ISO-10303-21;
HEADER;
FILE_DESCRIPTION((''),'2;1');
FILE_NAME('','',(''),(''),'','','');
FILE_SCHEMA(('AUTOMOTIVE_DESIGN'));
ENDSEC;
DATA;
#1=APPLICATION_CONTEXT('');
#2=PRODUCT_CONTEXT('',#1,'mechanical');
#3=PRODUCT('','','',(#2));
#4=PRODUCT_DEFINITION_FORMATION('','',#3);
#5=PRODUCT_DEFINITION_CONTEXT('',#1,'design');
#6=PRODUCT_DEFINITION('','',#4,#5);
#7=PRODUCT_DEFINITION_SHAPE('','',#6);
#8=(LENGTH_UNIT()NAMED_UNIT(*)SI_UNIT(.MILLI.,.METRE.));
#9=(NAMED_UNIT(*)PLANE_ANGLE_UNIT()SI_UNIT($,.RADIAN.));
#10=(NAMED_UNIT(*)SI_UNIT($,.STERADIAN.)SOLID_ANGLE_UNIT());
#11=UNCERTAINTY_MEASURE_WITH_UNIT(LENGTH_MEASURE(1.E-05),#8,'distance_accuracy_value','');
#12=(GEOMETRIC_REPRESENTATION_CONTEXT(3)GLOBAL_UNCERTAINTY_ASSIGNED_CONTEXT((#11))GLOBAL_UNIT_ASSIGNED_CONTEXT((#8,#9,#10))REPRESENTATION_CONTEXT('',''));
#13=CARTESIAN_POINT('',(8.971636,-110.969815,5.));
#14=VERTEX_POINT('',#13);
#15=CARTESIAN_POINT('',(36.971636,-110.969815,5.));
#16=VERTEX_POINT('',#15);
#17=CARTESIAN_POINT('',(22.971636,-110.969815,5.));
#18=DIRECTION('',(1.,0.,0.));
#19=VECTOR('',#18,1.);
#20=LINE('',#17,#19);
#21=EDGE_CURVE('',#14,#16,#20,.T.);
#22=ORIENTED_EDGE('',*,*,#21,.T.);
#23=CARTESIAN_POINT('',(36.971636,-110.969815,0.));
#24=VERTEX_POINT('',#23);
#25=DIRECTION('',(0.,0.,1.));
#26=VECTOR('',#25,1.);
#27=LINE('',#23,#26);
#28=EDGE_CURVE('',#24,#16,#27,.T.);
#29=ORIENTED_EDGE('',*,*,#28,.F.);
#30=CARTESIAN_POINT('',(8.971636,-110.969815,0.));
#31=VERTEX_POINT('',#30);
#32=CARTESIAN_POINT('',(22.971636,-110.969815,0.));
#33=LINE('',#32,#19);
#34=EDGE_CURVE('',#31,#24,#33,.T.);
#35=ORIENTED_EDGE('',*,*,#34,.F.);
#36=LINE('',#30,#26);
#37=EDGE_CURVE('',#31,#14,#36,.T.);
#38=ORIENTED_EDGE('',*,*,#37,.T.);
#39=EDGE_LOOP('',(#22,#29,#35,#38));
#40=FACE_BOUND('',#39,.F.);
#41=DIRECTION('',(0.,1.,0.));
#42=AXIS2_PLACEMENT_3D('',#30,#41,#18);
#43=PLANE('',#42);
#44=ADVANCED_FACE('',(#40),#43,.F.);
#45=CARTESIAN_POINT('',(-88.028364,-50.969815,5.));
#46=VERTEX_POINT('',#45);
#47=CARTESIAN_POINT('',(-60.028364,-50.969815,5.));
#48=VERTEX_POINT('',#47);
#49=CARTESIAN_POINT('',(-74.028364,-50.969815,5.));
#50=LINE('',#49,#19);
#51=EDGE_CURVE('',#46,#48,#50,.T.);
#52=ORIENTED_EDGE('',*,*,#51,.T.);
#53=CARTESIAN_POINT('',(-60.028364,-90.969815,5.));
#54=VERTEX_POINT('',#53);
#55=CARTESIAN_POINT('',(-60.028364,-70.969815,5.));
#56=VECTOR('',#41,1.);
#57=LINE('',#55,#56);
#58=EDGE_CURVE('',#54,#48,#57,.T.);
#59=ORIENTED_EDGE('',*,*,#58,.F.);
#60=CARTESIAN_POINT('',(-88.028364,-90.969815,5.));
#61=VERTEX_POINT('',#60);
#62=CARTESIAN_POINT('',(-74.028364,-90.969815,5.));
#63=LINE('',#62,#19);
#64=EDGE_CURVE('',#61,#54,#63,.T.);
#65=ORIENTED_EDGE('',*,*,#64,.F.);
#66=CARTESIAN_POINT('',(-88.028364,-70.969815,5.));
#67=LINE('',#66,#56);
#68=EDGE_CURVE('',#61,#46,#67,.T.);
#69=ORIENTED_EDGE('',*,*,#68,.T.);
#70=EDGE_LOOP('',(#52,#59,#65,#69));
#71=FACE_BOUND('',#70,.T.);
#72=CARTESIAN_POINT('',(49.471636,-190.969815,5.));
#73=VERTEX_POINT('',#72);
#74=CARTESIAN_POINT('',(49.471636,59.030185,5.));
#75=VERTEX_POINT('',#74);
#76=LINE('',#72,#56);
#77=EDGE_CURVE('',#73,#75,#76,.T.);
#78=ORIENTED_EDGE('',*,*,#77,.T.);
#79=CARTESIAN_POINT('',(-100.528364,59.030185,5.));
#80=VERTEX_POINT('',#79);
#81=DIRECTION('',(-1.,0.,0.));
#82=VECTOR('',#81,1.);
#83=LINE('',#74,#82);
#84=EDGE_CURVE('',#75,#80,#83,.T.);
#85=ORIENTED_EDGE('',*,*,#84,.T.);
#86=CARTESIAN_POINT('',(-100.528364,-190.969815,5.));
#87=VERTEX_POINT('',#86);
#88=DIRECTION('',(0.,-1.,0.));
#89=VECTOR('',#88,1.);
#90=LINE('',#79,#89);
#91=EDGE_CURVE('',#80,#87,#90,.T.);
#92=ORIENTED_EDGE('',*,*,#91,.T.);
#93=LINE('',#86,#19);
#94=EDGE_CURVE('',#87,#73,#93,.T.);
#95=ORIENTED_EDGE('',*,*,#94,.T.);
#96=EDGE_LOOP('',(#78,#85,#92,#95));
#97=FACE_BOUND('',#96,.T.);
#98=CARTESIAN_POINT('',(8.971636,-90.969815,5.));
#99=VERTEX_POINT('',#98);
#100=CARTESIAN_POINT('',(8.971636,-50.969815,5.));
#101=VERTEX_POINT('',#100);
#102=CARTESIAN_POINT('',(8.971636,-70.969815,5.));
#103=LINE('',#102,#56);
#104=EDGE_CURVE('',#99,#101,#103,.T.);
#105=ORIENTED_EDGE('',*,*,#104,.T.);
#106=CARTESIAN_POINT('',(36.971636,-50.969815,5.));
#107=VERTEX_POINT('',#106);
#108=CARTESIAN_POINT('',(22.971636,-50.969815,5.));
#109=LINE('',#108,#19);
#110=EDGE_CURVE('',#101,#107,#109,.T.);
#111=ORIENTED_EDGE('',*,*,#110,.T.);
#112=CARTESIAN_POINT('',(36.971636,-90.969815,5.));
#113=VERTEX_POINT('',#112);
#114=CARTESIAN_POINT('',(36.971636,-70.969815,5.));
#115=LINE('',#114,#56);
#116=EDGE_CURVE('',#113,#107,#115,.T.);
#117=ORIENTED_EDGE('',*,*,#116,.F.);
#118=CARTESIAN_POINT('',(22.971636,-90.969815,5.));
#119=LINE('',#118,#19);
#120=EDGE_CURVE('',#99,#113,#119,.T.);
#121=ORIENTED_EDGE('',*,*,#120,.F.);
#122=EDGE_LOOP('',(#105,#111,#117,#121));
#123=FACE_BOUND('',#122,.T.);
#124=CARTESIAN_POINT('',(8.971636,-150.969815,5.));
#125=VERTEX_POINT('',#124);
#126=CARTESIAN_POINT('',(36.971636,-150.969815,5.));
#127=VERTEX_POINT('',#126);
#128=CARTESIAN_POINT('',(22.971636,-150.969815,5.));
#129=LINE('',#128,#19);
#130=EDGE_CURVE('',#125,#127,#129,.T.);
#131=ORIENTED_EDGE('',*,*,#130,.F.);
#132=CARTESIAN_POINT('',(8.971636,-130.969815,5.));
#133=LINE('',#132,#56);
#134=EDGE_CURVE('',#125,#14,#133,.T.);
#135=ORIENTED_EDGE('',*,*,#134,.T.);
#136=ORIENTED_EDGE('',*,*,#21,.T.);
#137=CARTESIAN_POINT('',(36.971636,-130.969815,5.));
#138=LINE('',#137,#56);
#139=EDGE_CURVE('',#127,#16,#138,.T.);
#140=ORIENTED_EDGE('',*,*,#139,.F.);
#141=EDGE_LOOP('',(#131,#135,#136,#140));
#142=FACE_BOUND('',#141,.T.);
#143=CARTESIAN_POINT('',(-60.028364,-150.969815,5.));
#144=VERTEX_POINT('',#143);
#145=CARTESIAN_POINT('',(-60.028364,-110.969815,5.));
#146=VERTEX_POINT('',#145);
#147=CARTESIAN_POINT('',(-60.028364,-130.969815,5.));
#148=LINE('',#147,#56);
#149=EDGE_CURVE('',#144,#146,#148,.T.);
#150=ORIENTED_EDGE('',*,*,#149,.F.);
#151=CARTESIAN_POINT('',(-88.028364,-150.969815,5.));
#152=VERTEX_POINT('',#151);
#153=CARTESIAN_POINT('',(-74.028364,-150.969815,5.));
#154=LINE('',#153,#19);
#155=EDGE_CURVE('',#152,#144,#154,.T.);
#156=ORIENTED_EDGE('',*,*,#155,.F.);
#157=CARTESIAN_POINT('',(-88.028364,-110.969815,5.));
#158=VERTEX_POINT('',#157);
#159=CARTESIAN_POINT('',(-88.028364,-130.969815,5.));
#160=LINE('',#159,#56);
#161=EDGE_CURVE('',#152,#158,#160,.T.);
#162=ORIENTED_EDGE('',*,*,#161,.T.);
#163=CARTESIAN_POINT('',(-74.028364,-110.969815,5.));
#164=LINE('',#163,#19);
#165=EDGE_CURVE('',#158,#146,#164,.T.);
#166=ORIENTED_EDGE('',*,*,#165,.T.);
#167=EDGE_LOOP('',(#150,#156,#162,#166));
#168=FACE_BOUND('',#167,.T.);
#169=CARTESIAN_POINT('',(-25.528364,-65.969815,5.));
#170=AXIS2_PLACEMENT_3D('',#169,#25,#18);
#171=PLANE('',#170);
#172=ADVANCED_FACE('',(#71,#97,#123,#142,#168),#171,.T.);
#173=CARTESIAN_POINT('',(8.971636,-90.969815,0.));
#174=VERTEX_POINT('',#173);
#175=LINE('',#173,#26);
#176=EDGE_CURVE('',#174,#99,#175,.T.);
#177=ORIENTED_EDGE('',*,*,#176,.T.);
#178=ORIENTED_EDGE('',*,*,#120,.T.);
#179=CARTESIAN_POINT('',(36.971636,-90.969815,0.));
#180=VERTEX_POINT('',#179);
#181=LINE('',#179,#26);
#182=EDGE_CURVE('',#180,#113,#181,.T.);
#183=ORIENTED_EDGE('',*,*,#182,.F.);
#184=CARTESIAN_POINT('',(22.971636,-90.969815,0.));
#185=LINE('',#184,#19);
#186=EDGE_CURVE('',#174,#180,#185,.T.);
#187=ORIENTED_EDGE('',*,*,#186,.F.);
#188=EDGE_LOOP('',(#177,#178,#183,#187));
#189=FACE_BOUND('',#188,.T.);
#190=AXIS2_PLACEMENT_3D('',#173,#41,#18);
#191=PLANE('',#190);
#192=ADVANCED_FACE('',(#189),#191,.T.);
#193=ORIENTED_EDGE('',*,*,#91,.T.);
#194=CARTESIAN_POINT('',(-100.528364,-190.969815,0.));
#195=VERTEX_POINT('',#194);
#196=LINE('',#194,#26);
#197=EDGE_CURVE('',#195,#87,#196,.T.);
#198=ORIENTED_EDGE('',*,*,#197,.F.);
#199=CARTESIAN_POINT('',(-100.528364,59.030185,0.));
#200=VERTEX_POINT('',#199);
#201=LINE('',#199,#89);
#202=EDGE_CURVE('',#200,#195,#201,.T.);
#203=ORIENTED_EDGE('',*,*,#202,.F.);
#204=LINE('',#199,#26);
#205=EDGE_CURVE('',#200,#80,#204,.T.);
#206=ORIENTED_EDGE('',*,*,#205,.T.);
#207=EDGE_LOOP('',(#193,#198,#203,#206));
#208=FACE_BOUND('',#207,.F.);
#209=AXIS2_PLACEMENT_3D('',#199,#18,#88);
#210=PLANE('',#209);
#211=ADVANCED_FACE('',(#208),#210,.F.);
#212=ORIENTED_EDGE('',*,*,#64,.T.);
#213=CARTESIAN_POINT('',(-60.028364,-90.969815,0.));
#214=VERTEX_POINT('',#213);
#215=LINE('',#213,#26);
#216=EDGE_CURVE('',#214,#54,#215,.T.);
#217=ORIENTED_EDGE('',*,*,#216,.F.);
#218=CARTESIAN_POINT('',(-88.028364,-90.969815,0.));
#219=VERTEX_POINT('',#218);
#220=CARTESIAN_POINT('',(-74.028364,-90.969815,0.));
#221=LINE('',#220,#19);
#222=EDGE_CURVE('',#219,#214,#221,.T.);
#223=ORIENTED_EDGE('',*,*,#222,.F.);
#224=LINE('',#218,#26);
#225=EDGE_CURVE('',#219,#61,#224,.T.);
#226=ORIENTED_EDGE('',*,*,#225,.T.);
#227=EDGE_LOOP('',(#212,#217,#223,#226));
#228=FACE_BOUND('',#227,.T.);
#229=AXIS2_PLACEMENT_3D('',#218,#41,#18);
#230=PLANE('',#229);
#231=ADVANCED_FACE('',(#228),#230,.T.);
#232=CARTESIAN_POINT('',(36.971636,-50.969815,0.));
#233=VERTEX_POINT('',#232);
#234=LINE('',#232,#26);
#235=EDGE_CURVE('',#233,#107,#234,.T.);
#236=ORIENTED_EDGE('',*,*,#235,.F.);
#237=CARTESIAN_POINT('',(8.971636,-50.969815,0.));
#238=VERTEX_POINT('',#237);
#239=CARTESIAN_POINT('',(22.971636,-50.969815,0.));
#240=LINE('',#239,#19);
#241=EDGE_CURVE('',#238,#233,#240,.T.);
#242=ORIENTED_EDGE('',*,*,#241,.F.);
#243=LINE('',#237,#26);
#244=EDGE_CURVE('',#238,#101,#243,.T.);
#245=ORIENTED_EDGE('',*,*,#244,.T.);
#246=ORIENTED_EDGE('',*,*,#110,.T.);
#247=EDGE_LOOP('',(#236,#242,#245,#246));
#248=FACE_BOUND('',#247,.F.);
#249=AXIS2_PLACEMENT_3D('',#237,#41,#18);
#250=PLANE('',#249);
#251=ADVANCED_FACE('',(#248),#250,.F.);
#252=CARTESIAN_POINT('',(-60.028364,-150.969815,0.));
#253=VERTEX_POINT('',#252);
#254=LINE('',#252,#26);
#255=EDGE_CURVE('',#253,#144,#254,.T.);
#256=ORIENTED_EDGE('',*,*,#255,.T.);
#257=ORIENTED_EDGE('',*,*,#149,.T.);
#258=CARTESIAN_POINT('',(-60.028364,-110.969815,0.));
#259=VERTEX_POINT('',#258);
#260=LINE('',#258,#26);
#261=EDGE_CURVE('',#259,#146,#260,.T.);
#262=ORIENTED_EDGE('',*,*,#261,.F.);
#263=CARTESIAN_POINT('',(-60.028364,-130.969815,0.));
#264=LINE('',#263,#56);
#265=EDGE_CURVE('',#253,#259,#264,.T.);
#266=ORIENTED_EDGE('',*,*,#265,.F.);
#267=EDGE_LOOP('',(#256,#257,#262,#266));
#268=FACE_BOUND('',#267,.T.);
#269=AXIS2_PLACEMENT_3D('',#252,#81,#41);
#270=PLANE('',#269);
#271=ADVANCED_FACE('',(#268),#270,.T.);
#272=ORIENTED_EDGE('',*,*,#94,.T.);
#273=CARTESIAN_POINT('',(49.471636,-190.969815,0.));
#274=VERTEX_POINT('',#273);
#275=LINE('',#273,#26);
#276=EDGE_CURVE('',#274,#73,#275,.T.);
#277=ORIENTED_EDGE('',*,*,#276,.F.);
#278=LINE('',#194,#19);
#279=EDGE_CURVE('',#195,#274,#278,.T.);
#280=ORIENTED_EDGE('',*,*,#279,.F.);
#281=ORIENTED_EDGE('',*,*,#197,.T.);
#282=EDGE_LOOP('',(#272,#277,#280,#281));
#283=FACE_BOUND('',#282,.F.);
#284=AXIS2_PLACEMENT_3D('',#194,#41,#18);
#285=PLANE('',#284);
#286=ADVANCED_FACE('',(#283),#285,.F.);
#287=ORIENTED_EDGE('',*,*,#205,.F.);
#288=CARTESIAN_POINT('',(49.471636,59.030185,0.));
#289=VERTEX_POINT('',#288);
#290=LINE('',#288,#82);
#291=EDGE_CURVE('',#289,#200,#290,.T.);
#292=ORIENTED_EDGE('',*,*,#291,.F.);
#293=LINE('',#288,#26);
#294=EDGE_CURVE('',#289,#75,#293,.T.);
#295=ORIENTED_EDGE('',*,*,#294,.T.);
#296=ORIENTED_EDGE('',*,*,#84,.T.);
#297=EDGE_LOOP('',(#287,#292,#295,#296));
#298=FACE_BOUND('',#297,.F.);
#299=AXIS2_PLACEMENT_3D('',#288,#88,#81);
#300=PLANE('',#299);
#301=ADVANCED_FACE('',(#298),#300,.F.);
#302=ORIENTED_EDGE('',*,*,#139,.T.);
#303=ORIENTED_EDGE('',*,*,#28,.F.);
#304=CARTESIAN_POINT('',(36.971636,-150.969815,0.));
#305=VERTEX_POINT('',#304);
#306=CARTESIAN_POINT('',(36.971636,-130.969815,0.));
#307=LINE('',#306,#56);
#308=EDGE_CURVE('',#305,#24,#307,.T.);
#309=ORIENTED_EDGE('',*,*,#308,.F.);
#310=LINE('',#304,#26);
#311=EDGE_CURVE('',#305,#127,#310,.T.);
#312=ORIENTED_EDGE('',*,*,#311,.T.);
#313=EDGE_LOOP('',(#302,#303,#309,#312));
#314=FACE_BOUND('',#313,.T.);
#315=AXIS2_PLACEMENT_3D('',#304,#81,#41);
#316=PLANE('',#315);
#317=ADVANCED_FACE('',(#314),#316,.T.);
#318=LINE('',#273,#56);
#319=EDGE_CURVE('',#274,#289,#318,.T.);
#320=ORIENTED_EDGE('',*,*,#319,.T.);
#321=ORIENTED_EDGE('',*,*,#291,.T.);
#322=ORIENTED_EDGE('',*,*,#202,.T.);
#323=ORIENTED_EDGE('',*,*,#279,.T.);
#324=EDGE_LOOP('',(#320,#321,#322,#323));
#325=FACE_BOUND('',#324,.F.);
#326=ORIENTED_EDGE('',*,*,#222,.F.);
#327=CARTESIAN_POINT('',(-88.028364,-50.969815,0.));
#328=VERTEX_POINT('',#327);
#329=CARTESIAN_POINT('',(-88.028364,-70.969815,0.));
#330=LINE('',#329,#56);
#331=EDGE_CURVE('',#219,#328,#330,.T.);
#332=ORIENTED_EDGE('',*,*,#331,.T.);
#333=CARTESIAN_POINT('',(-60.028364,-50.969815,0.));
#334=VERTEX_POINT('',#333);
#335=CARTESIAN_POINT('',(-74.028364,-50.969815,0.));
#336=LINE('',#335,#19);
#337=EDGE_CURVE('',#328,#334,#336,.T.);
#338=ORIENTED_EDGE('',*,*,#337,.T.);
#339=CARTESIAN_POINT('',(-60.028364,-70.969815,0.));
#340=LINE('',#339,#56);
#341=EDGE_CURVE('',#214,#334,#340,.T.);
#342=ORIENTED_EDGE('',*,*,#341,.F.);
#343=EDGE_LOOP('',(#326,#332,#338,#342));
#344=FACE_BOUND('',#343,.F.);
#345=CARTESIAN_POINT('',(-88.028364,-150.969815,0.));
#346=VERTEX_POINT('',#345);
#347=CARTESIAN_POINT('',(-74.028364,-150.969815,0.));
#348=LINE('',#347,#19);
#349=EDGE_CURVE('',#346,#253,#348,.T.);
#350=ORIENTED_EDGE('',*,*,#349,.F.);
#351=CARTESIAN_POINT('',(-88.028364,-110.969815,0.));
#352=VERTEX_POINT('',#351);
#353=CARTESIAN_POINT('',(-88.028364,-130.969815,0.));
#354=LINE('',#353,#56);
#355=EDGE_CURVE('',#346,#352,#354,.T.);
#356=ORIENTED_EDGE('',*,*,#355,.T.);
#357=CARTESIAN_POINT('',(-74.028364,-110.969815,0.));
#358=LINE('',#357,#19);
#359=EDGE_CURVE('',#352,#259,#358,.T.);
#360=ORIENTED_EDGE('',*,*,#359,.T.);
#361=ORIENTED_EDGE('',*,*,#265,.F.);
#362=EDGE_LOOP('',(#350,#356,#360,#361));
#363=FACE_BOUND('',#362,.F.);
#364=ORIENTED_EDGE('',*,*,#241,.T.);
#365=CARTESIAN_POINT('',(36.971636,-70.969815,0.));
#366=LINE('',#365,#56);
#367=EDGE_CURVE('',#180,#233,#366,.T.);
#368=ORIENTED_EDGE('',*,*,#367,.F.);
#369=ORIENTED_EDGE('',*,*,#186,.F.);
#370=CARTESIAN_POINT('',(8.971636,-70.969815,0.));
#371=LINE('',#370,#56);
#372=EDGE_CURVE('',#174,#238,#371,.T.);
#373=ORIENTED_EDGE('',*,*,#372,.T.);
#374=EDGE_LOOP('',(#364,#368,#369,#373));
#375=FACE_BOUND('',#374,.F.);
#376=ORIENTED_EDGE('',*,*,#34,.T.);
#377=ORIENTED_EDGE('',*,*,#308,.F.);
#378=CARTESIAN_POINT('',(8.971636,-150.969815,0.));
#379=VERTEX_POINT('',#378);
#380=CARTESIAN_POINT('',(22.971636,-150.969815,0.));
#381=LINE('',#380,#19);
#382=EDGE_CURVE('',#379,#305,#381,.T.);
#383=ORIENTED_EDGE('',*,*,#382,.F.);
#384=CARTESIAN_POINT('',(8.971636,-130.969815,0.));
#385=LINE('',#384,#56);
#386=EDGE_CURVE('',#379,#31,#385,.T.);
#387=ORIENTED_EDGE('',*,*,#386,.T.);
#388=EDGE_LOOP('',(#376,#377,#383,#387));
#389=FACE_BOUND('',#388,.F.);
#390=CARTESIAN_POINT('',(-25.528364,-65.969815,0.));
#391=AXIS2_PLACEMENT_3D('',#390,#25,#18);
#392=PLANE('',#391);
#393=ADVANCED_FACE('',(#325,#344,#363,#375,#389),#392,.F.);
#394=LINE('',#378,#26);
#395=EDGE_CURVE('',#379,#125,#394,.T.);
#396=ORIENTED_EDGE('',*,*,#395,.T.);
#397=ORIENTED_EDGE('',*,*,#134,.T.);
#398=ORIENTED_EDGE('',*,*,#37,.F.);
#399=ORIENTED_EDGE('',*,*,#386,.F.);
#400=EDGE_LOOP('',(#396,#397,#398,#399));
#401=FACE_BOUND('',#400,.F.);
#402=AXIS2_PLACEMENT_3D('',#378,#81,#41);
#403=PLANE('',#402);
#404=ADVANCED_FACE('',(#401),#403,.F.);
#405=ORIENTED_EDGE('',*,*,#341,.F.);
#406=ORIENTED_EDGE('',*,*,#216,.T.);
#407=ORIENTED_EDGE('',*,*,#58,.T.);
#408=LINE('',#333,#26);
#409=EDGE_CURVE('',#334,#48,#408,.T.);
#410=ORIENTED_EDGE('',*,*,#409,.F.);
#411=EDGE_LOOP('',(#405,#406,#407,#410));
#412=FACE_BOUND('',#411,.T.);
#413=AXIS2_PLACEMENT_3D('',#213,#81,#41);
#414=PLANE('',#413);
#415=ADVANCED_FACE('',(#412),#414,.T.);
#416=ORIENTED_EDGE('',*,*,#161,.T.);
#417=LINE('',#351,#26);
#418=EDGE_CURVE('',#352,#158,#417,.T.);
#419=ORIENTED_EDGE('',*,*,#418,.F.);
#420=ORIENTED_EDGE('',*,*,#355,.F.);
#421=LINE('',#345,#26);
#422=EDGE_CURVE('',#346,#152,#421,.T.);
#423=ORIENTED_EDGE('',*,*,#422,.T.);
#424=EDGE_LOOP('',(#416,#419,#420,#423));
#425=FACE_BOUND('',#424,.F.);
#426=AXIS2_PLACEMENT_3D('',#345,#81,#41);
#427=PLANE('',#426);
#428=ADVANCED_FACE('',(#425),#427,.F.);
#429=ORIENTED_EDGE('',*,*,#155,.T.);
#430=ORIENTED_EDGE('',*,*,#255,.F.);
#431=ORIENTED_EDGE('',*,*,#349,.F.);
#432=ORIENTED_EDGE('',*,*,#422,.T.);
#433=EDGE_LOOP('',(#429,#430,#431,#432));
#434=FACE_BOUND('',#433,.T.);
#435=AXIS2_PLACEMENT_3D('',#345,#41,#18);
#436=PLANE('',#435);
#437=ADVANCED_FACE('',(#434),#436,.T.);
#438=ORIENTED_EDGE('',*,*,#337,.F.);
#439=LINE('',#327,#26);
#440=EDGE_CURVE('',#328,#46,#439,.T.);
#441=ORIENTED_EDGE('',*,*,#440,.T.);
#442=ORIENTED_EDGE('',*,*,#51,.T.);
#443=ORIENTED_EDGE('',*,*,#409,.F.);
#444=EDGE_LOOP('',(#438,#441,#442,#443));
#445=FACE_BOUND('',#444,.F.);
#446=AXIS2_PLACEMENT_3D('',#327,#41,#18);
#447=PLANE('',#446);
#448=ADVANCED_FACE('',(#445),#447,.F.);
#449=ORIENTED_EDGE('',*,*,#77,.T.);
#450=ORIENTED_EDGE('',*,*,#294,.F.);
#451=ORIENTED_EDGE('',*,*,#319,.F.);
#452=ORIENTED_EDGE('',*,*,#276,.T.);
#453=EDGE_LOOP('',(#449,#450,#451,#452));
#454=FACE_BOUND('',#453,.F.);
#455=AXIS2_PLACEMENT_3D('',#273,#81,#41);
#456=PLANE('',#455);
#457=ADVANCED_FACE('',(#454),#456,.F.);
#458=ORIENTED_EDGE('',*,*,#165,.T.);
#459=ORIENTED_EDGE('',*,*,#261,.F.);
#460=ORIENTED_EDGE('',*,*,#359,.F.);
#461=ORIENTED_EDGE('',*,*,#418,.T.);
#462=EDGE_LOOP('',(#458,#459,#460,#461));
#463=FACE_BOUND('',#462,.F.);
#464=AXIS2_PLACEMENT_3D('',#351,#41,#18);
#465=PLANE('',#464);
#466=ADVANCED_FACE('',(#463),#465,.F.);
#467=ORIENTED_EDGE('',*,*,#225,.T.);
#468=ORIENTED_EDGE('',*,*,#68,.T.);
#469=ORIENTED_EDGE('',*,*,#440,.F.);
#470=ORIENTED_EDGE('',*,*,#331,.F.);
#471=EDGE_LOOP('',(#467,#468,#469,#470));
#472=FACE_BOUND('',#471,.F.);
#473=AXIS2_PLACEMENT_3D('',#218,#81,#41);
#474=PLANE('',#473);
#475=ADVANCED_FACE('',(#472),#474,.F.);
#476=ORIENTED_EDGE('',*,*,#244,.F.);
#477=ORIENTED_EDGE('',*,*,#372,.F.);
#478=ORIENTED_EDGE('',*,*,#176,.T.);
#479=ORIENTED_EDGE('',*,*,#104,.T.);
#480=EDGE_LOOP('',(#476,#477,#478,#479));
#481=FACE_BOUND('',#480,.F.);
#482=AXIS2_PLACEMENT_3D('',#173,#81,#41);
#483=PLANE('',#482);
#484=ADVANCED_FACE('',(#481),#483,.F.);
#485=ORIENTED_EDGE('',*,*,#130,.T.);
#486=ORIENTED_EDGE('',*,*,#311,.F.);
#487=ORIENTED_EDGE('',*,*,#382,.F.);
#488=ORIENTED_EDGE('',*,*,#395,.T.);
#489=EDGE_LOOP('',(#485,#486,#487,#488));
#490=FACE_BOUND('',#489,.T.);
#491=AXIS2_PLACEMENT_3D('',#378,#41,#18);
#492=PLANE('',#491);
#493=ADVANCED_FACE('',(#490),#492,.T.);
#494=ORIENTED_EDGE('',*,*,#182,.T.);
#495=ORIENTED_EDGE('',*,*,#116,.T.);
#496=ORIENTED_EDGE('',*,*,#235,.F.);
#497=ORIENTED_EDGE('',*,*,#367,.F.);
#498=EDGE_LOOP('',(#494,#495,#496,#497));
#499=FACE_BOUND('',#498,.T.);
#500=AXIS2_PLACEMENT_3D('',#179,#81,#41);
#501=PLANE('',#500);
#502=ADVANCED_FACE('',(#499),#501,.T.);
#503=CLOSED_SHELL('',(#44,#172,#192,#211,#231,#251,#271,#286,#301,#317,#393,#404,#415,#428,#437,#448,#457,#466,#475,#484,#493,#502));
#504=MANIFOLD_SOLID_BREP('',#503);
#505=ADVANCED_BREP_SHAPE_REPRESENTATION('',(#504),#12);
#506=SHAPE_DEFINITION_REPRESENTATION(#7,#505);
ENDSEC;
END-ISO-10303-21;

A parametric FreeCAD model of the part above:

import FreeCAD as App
import Part
import Sketcher
Q = App.Units.Quantity


def add_polygon(sketch, points):
    """Adds a closed chain of lines whose ends are joined by coincident constraints."""
    first, n = sketch.GeometryCount, len(points)
    for a, b in zip(points, points[1:] + points[:1]):
        sketch.addGeometry(Part.LineSegment(App.Vector(*a, 0), App.Vector(*b, 0)), False)
    for i in range(n):
        sketch.addConstraint(Sketcher.Constraint("Coincident", first + i, 2, first + (i + 1) % n, 1))

doc = App.newDocument("Part")
body = doc.addObject("PartDesign::Body", "Body")

sketch1 = body.newObject("Sketcher::SketchObject", "Sketch")
sketch1.AttachmentSupport = (doc.getObject("XY_Plane"), [""])
sketch1.MapMode = "FlatFace"
add_polygon(sketch1, [(49.471636, 59.030185), (-100.528364, 59.030185), (-100.528364, -190.969815), (49.471636, -190.969815)])
add_polygon(sketch1, [(-60.028364, -150.969815), (-88.028364, -150.969815), (-88.028364, -110.969815), (-60.028364, -110.969815)])
add_polygon(sketch1, [(36.971636, -150.969815), (8.971636, -150.969815), (8.971636, -110.969815), (36.971636, -110.969815)])
add_polygon(sketch1, [(-60.028364, -90.969815), (-88.028364, -90.969815), (-88.028364, -50.969815), (-60.028364, -50.969815)])
add_polygon(sketch1, [(36.971636, -90.969815), (8.971636, -90.969815), (8.971636, -50.969815), (36.971636, -50.969815)])
sketch1.addConstraint([
    Sketcher.Constraint("Horizontal", 0),
    Sketcher.Constraint("Vertical", 1),
    Sketcher.Constraint("Horizontal", 2),
    Sketcher.Constraint("Vertical", 3),
    Sketcher.Constraint("Horizontal", 4),
    Sketcher.Constraint("Vertical", 5),
    Sketcher.Constraint("Horizontal", 6),
    Sketcher.Constraint("Vertical", 7),
    Sketcher.Constraint("Horizontal", 8),
    Sketcher.Constraint("Vertical", 9),
    Sketcher.Constraint("Horizontal", 10),
    Sketcher.Constraint("Vertical", 11),
    Sketcher.Constraint("Horizontal", 12),
    Sketcher.Constraint("Vertical", 13),
    Sketcher.Constraint("Horizontal", 14),
    Sketcher.Constraint("Vertical", 15),
    Sketcher.Constraint("Horizontal", 16),
    Sketcher.Constraint("Vertical", 17),
    Sketcher.Constraint("Horizontal", 18),
    Sketcher.Constraint("Vertical", 19),
    Sketcher.Constraint("Horizontal", 7, 2, 8, 2),
    Sketcher.Constraint("Horizontal", 6, 2, 9, 2),
    Sketcher.Constraint("Horizontal", 15, 2, 16, 2),
    Sketcher.Constraint("Horizontal", 14, 2, 17, 2),
    Sketcher.Constraint("Vertical", 5, 2, 12, 2),
    Sketcher.Constraint("Vertical", 7, 2, 14, 2),
    Sketcher.Constraint("Vertical", 9, 2, 16, 2),
    Sketcher.Constraint("Vertical", 11, 2, 18, 2),
    Sketcher.Constraint("Equal", 6, 8),
    Sketcher.Constraint("Equal", 11, 13),
    Sketcher.Constraint("DistanceX", 0, 2, 0, 1, Q("150 mm")),
    Sketcher.Constraint("DistanceX", 4, 2, 4, 1, Q("28 mm")),
    Sketcher.Constraint("DistanceY", 1, 2, 1, 1, Q("250 mm")),
    Sketcher.Constraint("DistanceY", 5, 1, 5, 2, Q("40 mm")),
    Sketcher.Constraint("DistanceY", 1, 2, 4, 2, Q("40 mm")),
    Sketcher.Constraint("DistanceX", 7, 2, 8, 2, Q("69 mm")),
    Sketcher.Constraint("DistanceY", 5, 2, 12, 2, Q("20 mm")),
    Sketcher.Constraint("DistanceX", 1, 2, 4, 2, Q("12.5 mm")),
    Sketcher.Constraint("DistanceX", 0, 2, -1, 1, Q("100.528364 mm")),
    Sketcher.Constraint("DistanceY", -1, 1, 0, 2, Q("59.030185 mm")),
])
pad1 = body.newObject("PartDesign::Pad", "Pad")
pad1.Profile = sketch1
pad1.Length = 5

doc.recompute()
